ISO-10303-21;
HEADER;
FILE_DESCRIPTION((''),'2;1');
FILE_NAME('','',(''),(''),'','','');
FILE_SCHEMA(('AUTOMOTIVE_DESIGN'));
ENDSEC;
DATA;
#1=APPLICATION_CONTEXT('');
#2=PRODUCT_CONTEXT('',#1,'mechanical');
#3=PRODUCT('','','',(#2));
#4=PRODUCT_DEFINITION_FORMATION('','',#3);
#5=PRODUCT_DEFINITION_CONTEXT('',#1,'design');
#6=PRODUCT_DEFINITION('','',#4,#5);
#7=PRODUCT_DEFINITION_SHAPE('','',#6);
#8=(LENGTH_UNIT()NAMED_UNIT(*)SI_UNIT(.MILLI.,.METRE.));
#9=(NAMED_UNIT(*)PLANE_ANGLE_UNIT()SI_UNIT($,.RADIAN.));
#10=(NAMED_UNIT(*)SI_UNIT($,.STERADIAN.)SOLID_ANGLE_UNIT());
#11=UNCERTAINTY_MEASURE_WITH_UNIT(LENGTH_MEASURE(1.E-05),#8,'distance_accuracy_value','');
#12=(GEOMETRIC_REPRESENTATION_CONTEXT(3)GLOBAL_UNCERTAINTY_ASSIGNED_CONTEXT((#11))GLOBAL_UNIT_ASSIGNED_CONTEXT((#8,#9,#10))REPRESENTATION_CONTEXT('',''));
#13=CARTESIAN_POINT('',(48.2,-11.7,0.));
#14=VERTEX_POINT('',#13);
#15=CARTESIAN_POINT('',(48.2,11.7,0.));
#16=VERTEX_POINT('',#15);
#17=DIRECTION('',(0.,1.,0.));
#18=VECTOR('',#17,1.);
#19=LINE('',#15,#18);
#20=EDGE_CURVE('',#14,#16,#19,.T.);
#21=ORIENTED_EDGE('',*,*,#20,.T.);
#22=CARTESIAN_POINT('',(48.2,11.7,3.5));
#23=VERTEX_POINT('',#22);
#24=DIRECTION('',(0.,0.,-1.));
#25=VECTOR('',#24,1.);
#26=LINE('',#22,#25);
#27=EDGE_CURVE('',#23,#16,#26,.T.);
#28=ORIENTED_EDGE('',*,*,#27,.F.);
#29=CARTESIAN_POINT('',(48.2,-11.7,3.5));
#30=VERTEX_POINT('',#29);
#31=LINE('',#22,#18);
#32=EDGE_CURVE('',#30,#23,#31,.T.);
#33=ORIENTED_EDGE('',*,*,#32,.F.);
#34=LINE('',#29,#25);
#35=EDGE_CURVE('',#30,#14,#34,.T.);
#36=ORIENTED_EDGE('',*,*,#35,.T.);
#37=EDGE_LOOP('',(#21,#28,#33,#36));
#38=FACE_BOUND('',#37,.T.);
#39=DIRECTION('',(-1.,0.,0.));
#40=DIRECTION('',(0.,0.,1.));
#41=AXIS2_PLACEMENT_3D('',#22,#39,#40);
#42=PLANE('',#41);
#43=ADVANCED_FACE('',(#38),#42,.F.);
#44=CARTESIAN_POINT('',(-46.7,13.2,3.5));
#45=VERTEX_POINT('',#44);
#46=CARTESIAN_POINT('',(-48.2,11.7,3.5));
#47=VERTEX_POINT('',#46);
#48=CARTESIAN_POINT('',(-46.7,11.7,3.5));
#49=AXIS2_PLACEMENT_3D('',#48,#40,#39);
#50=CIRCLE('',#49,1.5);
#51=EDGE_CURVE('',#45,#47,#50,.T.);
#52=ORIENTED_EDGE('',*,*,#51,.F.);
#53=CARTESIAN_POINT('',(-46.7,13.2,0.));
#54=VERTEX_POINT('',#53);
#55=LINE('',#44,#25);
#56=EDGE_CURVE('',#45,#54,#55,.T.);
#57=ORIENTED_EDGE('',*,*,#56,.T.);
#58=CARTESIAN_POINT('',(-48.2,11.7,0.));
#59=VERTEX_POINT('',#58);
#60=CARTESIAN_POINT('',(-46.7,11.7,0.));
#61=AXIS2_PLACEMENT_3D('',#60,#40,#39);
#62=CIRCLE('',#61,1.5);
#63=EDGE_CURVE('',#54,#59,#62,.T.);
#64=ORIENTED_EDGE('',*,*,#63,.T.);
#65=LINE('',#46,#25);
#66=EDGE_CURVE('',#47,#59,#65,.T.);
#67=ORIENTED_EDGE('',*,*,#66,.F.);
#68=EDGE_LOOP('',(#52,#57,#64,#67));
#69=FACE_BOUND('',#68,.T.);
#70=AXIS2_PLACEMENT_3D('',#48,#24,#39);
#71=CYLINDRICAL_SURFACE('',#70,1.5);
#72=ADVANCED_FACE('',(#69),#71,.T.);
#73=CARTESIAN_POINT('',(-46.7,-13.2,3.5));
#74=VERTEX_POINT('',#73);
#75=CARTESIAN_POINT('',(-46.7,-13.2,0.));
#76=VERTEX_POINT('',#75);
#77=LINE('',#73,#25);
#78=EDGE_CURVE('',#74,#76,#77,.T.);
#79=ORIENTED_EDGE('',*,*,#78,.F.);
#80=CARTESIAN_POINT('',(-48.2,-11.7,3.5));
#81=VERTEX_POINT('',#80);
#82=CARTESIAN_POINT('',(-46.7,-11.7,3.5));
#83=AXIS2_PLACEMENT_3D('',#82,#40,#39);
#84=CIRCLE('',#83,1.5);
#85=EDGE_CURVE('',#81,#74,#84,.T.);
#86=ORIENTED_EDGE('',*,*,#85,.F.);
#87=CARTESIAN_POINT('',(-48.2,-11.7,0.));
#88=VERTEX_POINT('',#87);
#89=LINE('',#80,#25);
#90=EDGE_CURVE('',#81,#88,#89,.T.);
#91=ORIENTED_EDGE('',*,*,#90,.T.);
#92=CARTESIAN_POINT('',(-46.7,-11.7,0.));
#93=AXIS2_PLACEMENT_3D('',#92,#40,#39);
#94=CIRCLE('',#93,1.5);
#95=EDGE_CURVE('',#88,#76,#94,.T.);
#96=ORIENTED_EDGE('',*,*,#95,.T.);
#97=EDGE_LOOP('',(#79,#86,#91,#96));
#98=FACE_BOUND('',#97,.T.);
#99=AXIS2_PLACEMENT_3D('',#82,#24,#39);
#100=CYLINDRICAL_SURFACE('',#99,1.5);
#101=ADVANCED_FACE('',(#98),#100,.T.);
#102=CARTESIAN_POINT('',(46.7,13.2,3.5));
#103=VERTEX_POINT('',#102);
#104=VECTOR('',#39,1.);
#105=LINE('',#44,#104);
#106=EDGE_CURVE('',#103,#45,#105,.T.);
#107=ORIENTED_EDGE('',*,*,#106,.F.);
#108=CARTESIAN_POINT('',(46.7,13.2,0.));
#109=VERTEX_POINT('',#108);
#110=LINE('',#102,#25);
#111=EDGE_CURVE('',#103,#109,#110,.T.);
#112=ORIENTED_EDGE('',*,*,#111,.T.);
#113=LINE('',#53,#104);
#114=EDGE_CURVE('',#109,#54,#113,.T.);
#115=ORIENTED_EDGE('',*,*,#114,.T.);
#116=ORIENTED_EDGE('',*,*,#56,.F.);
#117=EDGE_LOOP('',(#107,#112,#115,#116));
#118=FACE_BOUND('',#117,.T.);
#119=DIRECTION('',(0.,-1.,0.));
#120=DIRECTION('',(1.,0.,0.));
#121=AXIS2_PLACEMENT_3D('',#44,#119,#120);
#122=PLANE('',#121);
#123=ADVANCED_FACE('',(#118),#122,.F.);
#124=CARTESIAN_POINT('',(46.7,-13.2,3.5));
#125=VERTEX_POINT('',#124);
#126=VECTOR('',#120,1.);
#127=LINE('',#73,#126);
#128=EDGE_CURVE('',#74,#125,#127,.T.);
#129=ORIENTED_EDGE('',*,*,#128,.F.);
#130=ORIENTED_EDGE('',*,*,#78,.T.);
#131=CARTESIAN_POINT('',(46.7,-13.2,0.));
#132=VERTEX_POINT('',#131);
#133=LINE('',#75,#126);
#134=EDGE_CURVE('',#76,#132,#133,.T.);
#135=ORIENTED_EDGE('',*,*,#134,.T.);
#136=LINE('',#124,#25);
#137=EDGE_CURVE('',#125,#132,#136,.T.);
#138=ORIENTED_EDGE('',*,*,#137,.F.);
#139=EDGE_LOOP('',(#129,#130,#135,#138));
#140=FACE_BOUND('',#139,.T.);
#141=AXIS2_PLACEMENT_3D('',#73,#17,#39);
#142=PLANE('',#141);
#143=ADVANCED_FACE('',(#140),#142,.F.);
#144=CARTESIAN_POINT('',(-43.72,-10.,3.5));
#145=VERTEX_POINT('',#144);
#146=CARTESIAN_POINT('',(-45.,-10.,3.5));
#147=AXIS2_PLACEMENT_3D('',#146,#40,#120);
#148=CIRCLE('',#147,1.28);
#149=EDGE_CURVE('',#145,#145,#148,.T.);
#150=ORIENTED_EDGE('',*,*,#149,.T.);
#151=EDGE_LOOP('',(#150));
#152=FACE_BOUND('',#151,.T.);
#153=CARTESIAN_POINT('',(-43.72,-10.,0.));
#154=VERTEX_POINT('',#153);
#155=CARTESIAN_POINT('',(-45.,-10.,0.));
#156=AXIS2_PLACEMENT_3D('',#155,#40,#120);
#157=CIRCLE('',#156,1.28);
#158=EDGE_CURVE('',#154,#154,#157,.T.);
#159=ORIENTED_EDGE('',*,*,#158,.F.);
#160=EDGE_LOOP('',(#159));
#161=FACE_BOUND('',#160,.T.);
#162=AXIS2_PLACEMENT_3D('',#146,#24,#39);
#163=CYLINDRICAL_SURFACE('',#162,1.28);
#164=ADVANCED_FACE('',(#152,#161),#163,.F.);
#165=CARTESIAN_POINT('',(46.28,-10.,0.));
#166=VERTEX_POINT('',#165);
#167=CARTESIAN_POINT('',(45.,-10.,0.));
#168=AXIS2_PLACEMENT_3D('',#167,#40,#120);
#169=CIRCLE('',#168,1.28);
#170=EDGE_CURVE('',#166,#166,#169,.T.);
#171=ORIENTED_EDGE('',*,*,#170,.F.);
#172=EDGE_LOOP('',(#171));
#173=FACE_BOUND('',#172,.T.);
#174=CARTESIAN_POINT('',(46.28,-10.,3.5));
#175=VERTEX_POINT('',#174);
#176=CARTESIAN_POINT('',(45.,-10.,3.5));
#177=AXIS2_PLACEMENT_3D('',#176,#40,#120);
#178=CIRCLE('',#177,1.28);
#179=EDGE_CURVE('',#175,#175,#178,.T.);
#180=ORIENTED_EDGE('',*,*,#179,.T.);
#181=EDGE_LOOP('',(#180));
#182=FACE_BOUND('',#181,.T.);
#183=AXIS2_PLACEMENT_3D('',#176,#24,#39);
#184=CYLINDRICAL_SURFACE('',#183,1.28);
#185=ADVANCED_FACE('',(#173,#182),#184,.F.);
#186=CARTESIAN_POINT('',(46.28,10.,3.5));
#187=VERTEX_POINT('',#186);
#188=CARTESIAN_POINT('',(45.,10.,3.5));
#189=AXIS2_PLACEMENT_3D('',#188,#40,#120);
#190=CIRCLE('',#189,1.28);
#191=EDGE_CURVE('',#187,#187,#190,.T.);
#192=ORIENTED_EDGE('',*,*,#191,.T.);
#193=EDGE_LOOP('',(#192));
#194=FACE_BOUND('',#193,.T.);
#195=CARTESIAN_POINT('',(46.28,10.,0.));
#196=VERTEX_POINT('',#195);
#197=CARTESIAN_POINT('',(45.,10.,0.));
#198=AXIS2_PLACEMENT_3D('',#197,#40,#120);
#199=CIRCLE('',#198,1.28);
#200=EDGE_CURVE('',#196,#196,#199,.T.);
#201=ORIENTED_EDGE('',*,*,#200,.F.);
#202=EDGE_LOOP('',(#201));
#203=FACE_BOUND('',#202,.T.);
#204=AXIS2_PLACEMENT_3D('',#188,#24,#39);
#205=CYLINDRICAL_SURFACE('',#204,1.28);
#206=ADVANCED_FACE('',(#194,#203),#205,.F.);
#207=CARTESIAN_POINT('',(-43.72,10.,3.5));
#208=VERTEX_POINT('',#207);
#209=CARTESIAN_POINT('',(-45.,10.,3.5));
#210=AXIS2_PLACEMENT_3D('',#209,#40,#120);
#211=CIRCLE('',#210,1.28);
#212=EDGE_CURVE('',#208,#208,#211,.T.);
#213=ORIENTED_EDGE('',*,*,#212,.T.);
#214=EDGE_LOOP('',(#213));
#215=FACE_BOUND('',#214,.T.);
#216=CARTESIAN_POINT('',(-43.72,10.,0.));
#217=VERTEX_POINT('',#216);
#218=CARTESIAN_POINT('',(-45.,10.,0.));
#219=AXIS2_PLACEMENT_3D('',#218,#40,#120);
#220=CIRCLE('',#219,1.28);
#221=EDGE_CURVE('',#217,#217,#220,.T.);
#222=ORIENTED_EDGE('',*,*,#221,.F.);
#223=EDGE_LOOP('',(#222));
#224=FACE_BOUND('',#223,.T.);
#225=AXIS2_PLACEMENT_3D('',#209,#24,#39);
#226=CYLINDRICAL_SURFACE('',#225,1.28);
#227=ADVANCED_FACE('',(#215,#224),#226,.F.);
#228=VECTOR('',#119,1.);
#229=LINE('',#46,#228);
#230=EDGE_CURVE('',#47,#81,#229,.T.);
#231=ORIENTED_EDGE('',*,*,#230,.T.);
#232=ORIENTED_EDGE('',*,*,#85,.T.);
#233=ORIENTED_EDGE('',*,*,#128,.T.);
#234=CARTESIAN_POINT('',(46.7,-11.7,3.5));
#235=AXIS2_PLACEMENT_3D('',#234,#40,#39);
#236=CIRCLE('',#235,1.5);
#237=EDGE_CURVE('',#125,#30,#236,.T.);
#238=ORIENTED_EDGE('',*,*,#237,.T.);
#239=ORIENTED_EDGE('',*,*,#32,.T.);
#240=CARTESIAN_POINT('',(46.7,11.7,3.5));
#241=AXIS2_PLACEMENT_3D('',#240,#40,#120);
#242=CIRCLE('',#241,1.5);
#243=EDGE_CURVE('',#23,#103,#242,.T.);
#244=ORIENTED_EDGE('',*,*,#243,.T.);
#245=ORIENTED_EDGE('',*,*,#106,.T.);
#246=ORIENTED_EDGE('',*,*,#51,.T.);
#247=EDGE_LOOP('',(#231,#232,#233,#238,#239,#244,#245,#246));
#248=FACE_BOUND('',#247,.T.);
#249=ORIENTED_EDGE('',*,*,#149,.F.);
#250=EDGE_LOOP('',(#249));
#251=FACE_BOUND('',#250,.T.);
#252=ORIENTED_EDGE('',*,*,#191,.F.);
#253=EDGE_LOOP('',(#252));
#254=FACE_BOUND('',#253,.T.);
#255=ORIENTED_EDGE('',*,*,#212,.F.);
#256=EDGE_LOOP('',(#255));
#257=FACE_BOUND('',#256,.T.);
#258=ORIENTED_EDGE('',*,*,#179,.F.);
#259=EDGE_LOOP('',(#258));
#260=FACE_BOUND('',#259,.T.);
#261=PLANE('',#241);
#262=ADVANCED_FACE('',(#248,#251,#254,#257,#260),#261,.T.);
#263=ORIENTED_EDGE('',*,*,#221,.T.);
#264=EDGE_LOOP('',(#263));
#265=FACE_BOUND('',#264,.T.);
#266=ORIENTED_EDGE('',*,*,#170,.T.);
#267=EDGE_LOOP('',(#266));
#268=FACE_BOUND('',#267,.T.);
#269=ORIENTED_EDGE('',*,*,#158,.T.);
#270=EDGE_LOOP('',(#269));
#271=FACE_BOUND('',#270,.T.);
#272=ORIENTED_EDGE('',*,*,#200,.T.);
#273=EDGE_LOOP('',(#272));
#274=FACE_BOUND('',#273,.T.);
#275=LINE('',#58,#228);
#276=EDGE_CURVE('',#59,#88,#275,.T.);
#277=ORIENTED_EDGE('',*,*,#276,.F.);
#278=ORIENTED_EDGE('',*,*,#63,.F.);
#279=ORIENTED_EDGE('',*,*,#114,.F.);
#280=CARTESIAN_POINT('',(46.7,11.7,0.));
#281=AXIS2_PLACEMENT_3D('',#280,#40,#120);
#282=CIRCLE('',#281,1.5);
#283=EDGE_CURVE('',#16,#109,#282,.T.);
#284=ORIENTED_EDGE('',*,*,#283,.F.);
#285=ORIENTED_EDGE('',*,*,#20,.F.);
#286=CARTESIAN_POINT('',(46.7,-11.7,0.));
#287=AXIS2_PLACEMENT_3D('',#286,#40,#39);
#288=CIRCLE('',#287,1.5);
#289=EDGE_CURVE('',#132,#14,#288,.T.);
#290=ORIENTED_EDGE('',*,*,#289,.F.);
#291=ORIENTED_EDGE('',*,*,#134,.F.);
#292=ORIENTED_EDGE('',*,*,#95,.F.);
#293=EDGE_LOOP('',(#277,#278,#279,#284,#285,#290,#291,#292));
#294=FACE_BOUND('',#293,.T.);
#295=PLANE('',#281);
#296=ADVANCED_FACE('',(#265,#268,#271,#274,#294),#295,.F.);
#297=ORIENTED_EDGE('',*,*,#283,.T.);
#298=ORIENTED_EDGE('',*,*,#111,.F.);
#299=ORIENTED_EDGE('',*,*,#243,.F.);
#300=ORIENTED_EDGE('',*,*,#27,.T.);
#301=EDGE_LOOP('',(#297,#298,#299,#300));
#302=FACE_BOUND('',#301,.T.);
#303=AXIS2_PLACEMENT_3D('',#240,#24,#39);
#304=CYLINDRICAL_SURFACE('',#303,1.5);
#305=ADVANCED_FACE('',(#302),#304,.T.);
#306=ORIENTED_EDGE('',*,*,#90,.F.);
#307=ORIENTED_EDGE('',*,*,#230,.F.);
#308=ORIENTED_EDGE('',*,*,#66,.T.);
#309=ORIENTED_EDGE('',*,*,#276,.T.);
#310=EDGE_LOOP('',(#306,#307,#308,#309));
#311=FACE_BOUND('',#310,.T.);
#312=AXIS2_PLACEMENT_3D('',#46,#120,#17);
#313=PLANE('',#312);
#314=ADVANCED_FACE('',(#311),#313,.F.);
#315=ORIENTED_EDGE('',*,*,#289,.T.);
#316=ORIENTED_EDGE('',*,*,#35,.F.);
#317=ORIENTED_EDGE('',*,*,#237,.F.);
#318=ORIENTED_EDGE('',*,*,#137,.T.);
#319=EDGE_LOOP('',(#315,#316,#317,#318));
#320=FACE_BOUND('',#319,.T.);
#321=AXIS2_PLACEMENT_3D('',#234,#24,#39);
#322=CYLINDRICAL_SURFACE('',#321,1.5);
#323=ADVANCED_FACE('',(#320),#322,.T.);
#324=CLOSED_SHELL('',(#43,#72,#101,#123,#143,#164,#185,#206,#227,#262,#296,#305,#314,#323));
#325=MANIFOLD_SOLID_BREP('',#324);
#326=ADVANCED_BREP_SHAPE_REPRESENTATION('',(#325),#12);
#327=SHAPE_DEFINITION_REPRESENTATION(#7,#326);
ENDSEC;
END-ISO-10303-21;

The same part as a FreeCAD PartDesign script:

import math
import FreeCAD as App
import Part
import Sketcher
from FreeCAD import Vector

doc = App.newDocument("Part")
body = doc.addObject("PartDesign::Body", "Body")

sketch1 = doc.addObject("Sketcher::SketchObject", "Sketch")
body.addObject(sketch1)
sketch1.AttachmentSupport = (doc.XY_Plane, [""])
sketch1.MapMode = "FlatFace"
sketch1.addGeometry(Part.LineSegment(Vector(46.7, 13.2, 0), Vector(-46.7, 13.2, 0)), False)
sketch1.addGeometry(Part.ArcOfCircle(Part.Circle(Vector(-46.7, 11.7, 0), Vector(0, 0, 1), 1.5), math.radians(90), math.radians(180)), False)
sketch1.addGeometry(Part.LineSegment(Vector(-48.2, 11.7, 0), Vector(-48.2, -11.7, 0)), False)
sketch1.addGeometry(Part.ArcOfCircle(Part.Circle(Vector(-46.7, -11.7, 0), Vector(0, 0, 1), 1.5), math.radians(180), math.radians(270)), False)
sketch1.addGeometry(Part.LineSegment(Vector(-46.7, -13.2, 0), Vector(46.7, -13.2, 0)), False)
sketch1.addGeometry(Part.ArcOfCircle(Part.Circle(Vector(46.7, -11.7, 0), Vector(0, 0, 1), 1.5), math.radians(-90), math.radians(0)), False)
sketch1.addGeometry(Part.LineSegment(Vector(48.2, -11.7, 0), Vector(48.2, 11.7, 0)), False)
sketch1.addGeometry(Part.ArcOfCircle(Part.Circle(Vector(46.7, 11.7, 0), Vector(0, 0, 1), 1.5), math.radians(0), math.radians(90)), False)
sketch1.addGeometry(Part.Circle(Vector(45, -10, 0), Vector(0, 0, 1), 1.3), False)
sketch1.addGeometry(Part.Circle(Vector(-45, -10, 0), Vector(0, 0, 1), 1.3), False)
sketch1.addGeometry(Part.Circle(Vector(45, 10, 0), Vector(0, 0, 1), 1.3), False)
sketch1.addGeometry(Part.Circle(Vector(-45, 10, 0), Vector(0, 0, 1), 1.3), False)
sketch1.addConstraint(Sketcher.Constraint("Tangent", 0, 2, 1, 1))
sketch1.addConstraint(Sketcher.Constraint("Tangent", 1, 2, 2, 1))
sketch1.addConstraint(Sketcher.Constraint("Tangent", 2, 2, 3, 1))
sketch1.addConstraint(Sketcher.Constraint("Tangent", 3, 2, 4, 1))
sketch1.addConstraint(Sketcher.Constraint("Tangent", 4, 2, 5, 1))
sketch1.addConstraint(Sketcher.Constraint("Tangent", 5, 2, 6, 1))
sketch1.addConstraint(Sketcher.Constraint("Tangent", 6, 2, 7, 1))
sketch1.addConstraint(Sketcher.Constraint("Tangent", 7, 2, 0, 1))
sketch1.addConstraint(Sketcher.Constraint("Horizontal", 0))
sketch1.addConstraint(Sketcher.Constraint("Vertical", 2))
sketch1.addConstraint(Sketcher.Constraint("Horizontal", 4))
sketch1.addConstraint(Sketcher.Constraint("Vertical", 6))
sketch1.addConstraint(Sketcher.Constraint("Equal", 1, 3))
sketch1.addConstraint(Sketcher.Constraint("Equal", 3, 5))
sketch1.addConstraint(Sketcher.Constraint("Equal", 5, 7))
sketch1.addConstraint(Sketcher.Constraint("Equal", 8, 9))
sketch1.addConstraint(Sketcher.Constraint("Equal", 9, 10))
sketch1.addConstraint(Sketcher.Constraint("Equal", 10, 11))
sketch1.addConstraint(Sketcher.Constraint("Symmetric", 1, 3, 5, 3, -1, 1))
sketch1.addConstraint(Sketcher.Constraint("Symmetric", 9, 3, 10, 3, -1, 1))
sketch1.addConstraint(Sketcher.Constraint("Symmetric", 8, 3, 11, 3, -1, 1))
sketch1.addConstraint(Sketcher.Constraint("Symmetric", 8, 3, 9, 3, -2))
sketch1.addConstraint(Sketcher.Constraint("Radius", 1, 1.5))
sketch1.addConstraint(Sketcher.Constraint("Diameter", 8, 2.56))
sketch1.addConstraint(Sketcher.Constraint("DistanceX", 0, 2, 0, 1, 93.4))
sketch1.addConstraint(Sketcher.Constraint("DistanceY", 2, 2, 2, 1, 23.4))
sketch1.addConstraint(Sketcher.Constraint("DistanceX", -1, 1, 8, 3, 45.0))
sketch1.addConstraint(Sketcher.Constraint("DistanceY", 8, 3, -1, 1, 10.0))
pad1 = doc.addObject("PartDesign::Pad", "Pad")
body.addObject(pad1)
pad1.Profile = sketch1
pad1.Length = 3.5

doc.recompute()
